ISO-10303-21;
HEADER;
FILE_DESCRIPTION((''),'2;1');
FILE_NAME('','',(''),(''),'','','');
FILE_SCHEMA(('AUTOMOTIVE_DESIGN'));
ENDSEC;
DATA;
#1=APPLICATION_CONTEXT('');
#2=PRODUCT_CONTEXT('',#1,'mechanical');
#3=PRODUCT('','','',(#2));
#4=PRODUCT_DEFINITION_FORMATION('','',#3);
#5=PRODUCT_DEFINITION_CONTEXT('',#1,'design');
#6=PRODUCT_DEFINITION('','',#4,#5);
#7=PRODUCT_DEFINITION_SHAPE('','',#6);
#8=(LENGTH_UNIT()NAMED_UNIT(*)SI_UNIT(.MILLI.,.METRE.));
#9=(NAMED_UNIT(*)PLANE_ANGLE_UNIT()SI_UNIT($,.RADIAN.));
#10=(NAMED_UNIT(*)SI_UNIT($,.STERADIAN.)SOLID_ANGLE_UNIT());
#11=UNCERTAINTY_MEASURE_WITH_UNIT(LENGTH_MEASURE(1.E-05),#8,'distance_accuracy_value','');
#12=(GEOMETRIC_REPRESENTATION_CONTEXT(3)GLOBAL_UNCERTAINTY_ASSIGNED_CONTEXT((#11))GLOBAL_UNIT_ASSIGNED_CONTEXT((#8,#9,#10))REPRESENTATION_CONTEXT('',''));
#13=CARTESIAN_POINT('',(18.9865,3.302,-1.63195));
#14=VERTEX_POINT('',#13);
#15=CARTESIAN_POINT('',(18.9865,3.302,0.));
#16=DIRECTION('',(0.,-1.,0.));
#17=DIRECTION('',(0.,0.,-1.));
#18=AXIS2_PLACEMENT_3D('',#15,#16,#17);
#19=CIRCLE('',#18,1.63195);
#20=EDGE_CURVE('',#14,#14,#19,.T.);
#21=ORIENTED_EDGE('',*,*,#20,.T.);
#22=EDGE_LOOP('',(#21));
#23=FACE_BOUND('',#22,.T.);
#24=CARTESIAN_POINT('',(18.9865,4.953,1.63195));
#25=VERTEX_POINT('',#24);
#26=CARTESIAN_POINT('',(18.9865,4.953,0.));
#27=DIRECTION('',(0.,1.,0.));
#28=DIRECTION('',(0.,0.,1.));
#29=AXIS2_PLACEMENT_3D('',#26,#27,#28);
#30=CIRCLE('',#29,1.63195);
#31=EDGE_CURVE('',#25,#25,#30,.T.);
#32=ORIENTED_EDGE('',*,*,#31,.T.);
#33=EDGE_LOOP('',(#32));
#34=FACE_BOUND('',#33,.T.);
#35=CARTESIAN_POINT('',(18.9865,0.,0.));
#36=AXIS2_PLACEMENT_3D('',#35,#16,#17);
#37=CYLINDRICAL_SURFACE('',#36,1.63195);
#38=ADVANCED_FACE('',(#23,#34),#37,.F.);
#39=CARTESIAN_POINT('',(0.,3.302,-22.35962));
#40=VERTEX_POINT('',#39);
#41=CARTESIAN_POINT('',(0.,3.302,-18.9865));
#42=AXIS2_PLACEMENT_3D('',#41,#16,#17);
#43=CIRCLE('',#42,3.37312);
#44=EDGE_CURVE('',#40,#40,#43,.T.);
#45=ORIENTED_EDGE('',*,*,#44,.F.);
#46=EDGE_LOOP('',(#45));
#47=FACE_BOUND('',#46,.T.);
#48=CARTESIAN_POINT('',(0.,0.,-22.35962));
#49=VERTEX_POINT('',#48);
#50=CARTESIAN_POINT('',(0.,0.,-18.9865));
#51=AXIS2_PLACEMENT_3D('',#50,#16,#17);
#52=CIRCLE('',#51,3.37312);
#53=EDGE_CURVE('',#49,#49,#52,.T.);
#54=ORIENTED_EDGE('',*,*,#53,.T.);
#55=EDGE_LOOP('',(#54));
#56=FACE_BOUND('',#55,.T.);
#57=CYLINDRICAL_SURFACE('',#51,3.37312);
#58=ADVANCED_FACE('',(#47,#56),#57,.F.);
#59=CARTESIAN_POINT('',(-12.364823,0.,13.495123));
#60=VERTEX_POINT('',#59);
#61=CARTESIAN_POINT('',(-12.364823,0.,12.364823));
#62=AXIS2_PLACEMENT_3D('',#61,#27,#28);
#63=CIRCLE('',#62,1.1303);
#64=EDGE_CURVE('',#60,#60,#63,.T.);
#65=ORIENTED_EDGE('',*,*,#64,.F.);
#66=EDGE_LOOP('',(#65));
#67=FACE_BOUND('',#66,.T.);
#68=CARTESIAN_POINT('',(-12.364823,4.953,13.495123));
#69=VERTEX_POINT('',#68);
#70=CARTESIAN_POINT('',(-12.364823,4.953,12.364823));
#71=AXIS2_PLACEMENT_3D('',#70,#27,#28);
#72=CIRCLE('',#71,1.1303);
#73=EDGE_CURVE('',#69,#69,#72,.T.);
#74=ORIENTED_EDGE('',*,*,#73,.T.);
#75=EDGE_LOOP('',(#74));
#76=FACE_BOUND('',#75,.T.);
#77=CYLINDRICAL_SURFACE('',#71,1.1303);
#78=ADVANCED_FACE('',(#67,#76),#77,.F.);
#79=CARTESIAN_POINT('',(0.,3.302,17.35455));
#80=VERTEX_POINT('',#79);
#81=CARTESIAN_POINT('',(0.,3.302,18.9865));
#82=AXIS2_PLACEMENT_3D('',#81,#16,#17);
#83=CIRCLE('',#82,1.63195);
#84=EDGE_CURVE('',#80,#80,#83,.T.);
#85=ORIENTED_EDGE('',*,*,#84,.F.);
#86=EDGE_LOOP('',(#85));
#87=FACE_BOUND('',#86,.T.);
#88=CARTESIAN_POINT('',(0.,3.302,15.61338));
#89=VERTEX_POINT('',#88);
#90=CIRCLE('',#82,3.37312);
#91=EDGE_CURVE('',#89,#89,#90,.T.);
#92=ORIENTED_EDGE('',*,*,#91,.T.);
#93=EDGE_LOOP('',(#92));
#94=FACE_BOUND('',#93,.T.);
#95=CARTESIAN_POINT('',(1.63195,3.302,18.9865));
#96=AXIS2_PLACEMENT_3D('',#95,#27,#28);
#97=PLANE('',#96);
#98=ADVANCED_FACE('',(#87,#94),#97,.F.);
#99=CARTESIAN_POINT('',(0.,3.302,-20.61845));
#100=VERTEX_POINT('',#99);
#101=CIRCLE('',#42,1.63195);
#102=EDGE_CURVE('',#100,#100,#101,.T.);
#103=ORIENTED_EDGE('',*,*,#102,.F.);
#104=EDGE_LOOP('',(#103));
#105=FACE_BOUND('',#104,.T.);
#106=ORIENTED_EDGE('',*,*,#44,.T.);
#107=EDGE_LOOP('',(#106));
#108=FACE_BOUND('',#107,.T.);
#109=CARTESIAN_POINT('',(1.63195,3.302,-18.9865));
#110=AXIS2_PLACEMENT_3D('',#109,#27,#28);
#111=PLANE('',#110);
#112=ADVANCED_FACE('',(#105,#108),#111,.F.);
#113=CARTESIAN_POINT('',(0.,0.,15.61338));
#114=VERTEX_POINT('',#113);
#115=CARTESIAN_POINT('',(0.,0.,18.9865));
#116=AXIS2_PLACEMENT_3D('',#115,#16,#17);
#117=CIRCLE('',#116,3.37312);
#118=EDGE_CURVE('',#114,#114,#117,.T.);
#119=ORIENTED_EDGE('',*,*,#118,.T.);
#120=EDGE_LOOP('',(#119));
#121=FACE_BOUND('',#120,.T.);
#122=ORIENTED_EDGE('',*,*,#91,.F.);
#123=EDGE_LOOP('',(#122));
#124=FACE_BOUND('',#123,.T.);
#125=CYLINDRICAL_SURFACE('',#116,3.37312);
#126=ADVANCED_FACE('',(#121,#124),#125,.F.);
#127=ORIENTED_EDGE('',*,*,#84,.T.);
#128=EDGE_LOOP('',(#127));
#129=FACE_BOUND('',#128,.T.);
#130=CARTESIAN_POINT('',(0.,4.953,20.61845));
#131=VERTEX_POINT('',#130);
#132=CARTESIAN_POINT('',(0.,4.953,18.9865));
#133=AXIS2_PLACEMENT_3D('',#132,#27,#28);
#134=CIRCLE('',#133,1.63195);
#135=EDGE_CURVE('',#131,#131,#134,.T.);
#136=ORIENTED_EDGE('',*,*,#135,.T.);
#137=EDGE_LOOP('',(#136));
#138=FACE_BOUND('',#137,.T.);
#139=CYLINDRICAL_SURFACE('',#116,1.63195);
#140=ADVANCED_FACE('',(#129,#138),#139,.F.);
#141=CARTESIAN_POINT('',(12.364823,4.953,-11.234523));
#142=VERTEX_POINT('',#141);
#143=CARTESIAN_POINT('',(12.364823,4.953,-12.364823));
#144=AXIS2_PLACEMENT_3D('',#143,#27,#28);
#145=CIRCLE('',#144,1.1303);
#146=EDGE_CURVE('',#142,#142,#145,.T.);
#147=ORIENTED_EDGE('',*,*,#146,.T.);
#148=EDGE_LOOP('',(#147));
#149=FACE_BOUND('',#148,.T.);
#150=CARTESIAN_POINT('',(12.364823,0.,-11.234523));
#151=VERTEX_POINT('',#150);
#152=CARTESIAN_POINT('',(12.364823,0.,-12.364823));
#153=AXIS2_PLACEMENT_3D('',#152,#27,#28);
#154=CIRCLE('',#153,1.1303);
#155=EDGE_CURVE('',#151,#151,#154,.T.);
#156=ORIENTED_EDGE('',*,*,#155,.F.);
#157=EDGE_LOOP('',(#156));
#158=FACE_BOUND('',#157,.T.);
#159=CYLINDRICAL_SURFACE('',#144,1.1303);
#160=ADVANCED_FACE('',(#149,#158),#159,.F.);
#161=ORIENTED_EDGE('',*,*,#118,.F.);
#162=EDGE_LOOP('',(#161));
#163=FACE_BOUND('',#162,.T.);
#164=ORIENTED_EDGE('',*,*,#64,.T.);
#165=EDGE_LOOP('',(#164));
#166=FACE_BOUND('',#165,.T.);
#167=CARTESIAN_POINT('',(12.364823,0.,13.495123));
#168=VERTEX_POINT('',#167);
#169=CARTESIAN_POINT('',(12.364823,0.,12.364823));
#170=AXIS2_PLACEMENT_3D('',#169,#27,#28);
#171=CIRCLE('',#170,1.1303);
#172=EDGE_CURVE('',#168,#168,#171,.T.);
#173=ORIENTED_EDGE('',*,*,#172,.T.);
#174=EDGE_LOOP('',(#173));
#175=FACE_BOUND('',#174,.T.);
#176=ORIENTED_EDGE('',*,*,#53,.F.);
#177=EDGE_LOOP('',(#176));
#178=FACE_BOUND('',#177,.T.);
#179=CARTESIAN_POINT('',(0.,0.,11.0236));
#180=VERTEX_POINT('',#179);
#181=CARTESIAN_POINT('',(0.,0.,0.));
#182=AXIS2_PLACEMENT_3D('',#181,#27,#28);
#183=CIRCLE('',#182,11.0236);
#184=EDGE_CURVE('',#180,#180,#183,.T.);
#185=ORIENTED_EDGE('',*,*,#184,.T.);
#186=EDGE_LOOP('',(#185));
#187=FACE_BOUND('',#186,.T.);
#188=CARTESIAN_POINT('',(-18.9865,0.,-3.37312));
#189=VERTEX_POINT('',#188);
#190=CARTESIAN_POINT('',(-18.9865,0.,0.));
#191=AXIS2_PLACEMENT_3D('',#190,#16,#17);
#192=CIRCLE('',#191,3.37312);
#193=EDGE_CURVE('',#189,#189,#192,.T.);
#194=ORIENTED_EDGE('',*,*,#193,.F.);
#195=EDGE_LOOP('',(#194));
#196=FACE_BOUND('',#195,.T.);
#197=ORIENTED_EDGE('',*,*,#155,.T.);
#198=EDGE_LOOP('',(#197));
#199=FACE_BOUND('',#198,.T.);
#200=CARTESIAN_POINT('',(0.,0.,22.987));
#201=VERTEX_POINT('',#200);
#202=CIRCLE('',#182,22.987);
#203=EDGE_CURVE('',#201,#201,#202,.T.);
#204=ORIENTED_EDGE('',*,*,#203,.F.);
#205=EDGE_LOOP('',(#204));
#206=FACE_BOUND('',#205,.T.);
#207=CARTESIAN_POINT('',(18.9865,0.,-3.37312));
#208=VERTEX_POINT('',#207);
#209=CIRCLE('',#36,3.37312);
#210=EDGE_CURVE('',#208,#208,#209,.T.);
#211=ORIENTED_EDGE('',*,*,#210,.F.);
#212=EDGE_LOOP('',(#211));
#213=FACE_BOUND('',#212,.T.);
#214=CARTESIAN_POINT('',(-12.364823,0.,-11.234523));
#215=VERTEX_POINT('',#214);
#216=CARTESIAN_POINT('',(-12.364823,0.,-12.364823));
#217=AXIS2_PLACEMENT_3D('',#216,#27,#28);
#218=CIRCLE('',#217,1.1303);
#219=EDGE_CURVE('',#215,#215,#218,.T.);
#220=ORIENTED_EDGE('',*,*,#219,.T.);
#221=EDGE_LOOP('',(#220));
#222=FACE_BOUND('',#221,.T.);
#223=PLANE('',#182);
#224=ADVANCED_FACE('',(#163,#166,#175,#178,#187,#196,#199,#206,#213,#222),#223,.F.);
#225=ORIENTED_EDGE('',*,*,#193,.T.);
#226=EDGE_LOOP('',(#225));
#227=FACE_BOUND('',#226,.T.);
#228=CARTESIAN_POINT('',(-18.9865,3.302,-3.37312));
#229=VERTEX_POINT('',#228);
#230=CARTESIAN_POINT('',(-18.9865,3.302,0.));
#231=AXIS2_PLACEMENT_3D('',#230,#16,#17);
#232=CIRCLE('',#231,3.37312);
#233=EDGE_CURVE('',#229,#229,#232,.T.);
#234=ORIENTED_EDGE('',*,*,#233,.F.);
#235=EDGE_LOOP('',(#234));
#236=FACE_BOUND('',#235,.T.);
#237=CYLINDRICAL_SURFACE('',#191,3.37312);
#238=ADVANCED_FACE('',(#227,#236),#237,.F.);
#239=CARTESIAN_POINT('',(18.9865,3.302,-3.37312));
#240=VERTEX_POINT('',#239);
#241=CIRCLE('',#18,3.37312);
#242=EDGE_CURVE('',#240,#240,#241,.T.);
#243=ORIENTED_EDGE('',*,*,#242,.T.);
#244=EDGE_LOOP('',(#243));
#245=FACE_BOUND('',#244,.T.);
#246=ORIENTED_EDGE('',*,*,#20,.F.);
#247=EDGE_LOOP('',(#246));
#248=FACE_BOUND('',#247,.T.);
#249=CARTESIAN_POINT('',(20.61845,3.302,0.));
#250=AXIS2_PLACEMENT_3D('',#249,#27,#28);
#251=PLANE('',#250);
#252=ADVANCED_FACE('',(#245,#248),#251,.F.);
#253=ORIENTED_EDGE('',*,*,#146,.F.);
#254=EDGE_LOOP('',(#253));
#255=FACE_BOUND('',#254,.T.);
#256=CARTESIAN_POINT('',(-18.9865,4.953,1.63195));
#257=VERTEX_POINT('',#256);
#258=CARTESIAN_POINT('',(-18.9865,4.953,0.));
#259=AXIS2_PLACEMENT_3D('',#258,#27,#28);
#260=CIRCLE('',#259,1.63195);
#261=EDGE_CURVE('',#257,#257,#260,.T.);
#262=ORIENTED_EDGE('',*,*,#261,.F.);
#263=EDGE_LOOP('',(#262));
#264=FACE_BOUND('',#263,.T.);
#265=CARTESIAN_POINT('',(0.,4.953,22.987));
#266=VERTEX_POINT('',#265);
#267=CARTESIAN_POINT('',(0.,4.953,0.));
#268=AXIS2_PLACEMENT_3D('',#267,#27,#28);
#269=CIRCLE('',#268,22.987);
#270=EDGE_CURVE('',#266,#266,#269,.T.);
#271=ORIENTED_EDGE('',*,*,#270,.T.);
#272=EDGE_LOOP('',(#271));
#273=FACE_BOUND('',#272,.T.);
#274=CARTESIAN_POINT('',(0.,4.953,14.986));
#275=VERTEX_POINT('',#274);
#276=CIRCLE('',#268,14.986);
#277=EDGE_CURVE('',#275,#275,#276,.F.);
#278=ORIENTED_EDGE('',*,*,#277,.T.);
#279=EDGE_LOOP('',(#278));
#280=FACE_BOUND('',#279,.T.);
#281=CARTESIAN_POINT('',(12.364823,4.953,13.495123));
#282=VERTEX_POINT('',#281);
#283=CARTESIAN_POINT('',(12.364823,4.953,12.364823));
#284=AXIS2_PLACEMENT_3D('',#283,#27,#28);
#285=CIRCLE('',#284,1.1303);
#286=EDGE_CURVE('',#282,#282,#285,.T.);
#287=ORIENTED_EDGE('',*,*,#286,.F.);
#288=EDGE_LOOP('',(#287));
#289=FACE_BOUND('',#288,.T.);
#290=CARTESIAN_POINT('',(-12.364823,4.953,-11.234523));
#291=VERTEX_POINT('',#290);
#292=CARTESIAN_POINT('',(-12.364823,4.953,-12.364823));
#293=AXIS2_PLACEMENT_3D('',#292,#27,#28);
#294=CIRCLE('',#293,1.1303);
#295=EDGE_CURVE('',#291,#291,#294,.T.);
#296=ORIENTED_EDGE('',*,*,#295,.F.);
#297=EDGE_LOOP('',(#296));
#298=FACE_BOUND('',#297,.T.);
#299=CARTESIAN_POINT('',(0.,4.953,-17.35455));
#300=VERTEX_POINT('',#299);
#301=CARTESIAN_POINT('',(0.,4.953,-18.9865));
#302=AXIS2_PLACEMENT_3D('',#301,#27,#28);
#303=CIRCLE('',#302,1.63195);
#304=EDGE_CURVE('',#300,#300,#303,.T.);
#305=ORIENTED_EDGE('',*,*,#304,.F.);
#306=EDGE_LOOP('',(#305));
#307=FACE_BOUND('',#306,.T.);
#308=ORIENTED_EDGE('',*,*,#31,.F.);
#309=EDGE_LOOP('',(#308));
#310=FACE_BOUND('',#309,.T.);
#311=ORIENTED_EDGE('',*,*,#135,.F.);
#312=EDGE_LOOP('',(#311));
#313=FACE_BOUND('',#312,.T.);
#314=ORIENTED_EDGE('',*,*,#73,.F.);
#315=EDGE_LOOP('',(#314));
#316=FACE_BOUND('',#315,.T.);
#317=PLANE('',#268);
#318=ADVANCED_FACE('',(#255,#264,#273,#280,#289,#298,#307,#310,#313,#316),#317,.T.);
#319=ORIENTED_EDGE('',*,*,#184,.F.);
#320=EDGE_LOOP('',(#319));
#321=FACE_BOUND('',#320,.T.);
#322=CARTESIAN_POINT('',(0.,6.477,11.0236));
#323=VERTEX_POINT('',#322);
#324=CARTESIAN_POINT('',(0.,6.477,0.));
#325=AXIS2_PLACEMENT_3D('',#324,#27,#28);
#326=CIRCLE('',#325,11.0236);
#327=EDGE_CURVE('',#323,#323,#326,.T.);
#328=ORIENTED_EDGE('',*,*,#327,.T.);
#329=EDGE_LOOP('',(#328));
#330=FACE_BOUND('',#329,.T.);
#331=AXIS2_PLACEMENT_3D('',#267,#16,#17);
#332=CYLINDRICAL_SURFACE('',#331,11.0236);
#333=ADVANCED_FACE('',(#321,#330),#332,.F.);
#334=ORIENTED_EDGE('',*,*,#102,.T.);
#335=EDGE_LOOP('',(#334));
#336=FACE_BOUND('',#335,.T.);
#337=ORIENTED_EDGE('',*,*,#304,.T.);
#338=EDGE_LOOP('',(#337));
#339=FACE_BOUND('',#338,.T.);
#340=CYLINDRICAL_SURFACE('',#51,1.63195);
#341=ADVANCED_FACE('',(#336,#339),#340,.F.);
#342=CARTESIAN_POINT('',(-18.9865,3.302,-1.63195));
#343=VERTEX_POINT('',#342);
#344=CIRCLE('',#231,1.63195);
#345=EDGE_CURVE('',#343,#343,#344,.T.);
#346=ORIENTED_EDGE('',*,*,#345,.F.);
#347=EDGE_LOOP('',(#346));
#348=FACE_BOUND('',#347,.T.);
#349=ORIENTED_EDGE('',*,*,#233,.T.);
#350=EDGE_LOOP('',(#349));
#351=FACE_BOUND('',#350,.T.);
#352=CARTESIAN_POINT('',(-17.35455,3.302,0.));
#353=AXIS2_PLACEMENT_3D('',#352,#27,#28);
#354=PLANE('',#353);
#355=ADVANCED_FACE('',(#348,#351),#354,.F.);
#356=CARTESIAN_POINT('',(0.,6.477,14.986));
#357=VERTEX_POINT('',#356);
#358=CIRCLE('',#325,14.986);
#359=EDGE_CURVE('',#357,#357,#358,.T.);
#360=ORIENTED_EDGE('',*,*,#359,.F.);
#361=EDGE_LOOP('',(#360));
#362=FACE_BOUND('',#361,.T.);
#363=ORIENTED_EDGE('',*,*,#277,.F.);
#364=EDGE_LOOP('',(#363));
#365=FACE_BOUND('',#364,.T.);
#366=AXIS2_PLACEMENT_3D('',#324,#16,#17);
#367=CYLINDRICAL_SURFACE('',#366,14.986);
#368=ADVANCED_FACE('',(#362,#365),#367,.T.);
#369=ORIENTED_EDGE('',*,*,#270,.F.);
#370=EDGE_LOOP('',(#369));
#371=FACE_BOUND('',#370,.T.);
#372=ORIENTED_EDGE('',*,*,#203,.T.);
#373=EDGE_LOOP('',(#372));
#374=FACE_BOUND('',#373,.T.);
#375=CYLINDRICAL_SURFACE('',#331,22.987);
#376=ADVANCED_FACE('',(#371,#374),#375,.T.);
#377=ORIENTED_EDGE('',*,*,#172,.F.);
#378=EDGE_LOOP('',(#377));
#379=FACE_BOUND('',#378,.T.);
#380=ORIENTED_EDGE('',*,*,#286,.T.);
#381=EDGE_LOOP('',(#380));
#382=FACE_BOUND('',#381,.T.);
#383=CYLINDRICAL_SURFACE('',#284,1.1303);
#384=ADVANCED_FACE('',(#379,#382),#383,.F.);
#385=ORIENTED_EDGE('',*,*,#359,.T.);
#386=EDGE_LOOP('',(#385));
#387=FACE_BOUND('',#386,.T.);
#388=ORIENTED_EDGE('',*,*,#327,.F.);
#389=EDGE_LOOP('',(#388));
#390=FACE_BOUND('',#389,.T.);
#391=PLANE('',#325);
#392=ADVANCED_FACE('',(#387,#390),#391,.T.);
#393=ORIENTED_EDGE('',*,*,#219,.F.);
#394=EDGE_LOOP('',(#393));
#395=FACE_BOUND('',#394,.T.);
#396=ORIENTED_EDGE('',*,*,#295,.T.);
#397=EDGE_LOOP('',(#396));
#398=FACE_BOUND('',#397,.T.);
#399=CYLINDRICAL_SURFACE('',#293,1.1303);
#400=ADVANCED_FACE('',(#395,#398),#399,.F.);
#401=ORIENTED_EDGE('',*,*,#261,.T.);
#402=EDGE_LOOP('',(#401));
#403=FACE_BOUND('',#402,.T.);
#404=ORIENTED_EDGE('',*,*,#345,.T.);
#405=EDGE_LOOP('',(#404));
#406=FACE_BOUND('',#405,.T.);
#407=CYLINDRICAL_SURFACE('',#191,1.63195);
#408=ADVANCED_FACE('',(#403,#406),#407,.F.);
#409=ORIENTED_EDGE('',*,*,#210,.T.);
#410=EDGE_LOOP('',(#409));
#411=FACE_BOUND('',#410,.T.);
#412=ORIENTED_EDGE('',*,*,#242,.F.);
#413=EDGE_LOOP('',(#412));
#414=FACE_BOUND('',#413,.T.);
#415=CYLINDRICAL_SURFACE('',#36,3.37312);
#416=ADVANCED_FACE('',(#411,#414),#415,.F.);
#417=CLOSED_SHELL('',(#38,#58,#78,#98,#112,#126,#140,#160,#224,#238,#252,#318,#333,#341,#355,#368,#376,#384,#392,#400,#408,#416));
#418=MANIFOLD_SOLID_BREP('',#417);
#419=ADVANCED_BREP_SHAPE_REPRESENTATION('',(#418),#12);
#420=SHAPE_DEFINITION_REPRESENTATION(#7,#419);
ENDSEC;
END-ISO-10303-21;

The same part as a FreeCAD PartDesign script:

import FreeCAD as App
import Part
import Sketcher
Q = App.Units.Quantity

doc = App.newDocument("Part")
body = doc.addObject("PartDesign::Body", "Body")

# Sketch on XZ plane
sketch1 = doc.addObject("Sketcher::SketchObject", "Sketch")
body.addObject(sketch1)
sketch1.AttachmentSupport = (doc.XZ_Plane, [""])
sketch1.MapMode = "FlatFace"
sketch1.addGeometry([
    Part.Circle(App.Vector(0, 0, 0), App.Vector(0, 0, 1), 22.987),
    Part.Circle(App.Vector(0, 0, 0), App.Vector(0, 0, 1), 11.0236),
], False)
sketch1.addConstraint([
    Sketcher.Constraint("Coincident", 0, 3, -1, 1),
    Sketcher.Constraint("Coincident", 1, 3, -1, 1),
    Sketcher.Constraint("Diameter", 0, Q("1.81 in")),
    Sketcher.Constraint("Diameter", 1, Q("0.868 in")),
])
pad1 = doc.addObject("PartDesign::Pad", "Pad")
body.addObject(pad1)
pad1.Profile = sketch1
pad1.Length = Q("0.195 in")
pad1.Reversed = True

# Sketch on XZ plane
sketch2 = doc.addObject("Sketcher::SketchObject", "Sketch001")
body.addObject(sketch2)
sketch2.AttachmentSupport = (doc.XZ_Plane, [""])
sketch2.MapMode = "FlatFace"
sketch2.addGeometry([
    Part.Circle(App.Vector(0, 0, 0), App.Vector(0, 0, 1), 14.986),
    Part.Circle(App.Vector(0, 0, 0), App.Vector(0, 0, 1), 11.0236),
], False)
sketch2.addConstraint([
    Sketcher.Constraint("Coincident", 0, 3, -1, 1),
    Sketcher.Constraint("Coincident", 1, 3, -1, 1),
    Sketcher.Constraint("Diameter", 0, Q("1.18 in")),
    Sketcher.Constraint("Diameter", 1, Q("0.868 in")),
])
pad2 = doc.addObject("PartDesign::Pad", "Pad001")
body.addObject(pad2)
pad2.Profile = sketch2
pad2.Length = Q("0.255 in")
pad2.Reversed = True

# Sketch on XZ plane
sketch3 = doc.addObject("Sketcher::SketchObject", "Sketch002")
body.addObject(sketch3)
sketch3.AttachmentSupport = (doc.XZ_Plane, [""])
sketch3.MapMode = "FlatFace"
sketch3.AttachmentOffset = App.Placement(App.Vector(0, 0, -0.195 * 25.4), App.Rotation())
sketch3.addGeometry([
    Part.Circle(App.Vector(-12.364823, -12.364823, 0), App.Vector(0, 0, 1), 1.1303),
    Part.Circle(App.Vector(12.364823, -12.364823, 0), App.Vector(0, 0, 1), 1.1303),
    Part.Circle(App.Vector(12.364823, 12.364823, 0), App.Vector(0, 0, 1), 1.1303),
    Part.Circle(App.Vector(-12.364823, 12.364823, 0), App.Vector(0, 0, 1), 1.1303),
], False)
sketch3.addConstraint([
    Sketcher.Constraint("Equal", 0, 1),
    Sketcher.Constraint("Equal", 1, 2),
    Sketcher.Constraint("Equal", 2, 3),
    Sketcher.Constraint("Symmetric", 0, 3, 2, 3, -1, 1),
    Sketcher.Constraint("Symmetric", 1, 3, 3, 3, -1, 1),
    Sketcher.Constraint("Symmetric", 0, 3, 1, 3, -2),
    Sketcher.Constraint("Diameter", 0, Q("0.089 in")),
    Sketcher.Constraint("DistanceX", 0, 3, -1, 1, Q("12.364823 mm")),
    Sketcher.Constraint("DistanceY", 0, 3, -1, 1, Q("12.364823 mm")),
])
doc.recompute()
hole = doc.addObject("PartDesign::Hole", "Hole")
body.addObject(hole)
hole.Profile = sketch3
hole.ThreadType = "None"
hole.Diameter = Q("0.089 in")
hole.DepthType = "ThroughAll"
hole.Reversed = True

# Sketch on XZ plane
sketch4 = doc.addObject("Sketcher::SketchObject", "Sketch003")
body.addObject(sketch4)
sketch4.AttachmentSupport = (doc.XZ_Plane, [""])
sketch4.MapMode = "FlatFace"
sketch4.addGeometry([
    Part.Circle(App.Vector(0, -18.9865, 0), App.Vector(0, 0, 1), 1.63195),
    Part.Circle(App.Vector(-18.9865, 0, 0), App.Vector(0, 0, 1), 1.63195),
    Part.Circle(App.Vector(0, 18.9865, 0), App.Vector(0, 0, 1), 1.63195),
    Part.Circle(App.Vector(18.9865, 0, 0), App.Vector(0, 0, 1), 1.63195),
], False)
sketch4.addConstraint([
    Sketcher.Constraint("Equal", 0, 1),
    Sketcher.Constraint("Equal", 1, 2),
    Sketcher.Constraint("Equal", 2, 3),
    Sketcher.Constraint("Symmetric", 0, 3, 2, 3, -1, 1),
    Sketcher.Constraint("Symmetric", 1, 3, 3, 3, -1, 1),
    Sketcher.Constraint("PointOnObject", 0, 3, -2),
    Sketcher.Constraint("PointOnObject", 1, 3, -1),
    Sketcher.Constraint("Diameter", 0, Q("0.1285 in")),
    Sketcher.Constraint("DistanceY", 0, 3, 2, 3, Q("1.495 in")),
    Sketcher.Constraint("DistanceX", 1, 3, 3, 3, Q("1.495 in")),
])
doc.recompute()
hole2 = doc.addObject("PartDesign::Hole", "Hole001")
body.addObject(hole2)
hole2.Profile = sketch4
hole2.ThreadType = "None"
hole2.Diameter = Q("0.1285 in")
hole2.DepthType = "ThroughAll"
hole2.HoleCutType = "Counterbore"
hole2.HoleCutDiameter = Q("0.2656 in")
hole2.HoleCutDepth = Q("0.13 in")

doc.recompute()
